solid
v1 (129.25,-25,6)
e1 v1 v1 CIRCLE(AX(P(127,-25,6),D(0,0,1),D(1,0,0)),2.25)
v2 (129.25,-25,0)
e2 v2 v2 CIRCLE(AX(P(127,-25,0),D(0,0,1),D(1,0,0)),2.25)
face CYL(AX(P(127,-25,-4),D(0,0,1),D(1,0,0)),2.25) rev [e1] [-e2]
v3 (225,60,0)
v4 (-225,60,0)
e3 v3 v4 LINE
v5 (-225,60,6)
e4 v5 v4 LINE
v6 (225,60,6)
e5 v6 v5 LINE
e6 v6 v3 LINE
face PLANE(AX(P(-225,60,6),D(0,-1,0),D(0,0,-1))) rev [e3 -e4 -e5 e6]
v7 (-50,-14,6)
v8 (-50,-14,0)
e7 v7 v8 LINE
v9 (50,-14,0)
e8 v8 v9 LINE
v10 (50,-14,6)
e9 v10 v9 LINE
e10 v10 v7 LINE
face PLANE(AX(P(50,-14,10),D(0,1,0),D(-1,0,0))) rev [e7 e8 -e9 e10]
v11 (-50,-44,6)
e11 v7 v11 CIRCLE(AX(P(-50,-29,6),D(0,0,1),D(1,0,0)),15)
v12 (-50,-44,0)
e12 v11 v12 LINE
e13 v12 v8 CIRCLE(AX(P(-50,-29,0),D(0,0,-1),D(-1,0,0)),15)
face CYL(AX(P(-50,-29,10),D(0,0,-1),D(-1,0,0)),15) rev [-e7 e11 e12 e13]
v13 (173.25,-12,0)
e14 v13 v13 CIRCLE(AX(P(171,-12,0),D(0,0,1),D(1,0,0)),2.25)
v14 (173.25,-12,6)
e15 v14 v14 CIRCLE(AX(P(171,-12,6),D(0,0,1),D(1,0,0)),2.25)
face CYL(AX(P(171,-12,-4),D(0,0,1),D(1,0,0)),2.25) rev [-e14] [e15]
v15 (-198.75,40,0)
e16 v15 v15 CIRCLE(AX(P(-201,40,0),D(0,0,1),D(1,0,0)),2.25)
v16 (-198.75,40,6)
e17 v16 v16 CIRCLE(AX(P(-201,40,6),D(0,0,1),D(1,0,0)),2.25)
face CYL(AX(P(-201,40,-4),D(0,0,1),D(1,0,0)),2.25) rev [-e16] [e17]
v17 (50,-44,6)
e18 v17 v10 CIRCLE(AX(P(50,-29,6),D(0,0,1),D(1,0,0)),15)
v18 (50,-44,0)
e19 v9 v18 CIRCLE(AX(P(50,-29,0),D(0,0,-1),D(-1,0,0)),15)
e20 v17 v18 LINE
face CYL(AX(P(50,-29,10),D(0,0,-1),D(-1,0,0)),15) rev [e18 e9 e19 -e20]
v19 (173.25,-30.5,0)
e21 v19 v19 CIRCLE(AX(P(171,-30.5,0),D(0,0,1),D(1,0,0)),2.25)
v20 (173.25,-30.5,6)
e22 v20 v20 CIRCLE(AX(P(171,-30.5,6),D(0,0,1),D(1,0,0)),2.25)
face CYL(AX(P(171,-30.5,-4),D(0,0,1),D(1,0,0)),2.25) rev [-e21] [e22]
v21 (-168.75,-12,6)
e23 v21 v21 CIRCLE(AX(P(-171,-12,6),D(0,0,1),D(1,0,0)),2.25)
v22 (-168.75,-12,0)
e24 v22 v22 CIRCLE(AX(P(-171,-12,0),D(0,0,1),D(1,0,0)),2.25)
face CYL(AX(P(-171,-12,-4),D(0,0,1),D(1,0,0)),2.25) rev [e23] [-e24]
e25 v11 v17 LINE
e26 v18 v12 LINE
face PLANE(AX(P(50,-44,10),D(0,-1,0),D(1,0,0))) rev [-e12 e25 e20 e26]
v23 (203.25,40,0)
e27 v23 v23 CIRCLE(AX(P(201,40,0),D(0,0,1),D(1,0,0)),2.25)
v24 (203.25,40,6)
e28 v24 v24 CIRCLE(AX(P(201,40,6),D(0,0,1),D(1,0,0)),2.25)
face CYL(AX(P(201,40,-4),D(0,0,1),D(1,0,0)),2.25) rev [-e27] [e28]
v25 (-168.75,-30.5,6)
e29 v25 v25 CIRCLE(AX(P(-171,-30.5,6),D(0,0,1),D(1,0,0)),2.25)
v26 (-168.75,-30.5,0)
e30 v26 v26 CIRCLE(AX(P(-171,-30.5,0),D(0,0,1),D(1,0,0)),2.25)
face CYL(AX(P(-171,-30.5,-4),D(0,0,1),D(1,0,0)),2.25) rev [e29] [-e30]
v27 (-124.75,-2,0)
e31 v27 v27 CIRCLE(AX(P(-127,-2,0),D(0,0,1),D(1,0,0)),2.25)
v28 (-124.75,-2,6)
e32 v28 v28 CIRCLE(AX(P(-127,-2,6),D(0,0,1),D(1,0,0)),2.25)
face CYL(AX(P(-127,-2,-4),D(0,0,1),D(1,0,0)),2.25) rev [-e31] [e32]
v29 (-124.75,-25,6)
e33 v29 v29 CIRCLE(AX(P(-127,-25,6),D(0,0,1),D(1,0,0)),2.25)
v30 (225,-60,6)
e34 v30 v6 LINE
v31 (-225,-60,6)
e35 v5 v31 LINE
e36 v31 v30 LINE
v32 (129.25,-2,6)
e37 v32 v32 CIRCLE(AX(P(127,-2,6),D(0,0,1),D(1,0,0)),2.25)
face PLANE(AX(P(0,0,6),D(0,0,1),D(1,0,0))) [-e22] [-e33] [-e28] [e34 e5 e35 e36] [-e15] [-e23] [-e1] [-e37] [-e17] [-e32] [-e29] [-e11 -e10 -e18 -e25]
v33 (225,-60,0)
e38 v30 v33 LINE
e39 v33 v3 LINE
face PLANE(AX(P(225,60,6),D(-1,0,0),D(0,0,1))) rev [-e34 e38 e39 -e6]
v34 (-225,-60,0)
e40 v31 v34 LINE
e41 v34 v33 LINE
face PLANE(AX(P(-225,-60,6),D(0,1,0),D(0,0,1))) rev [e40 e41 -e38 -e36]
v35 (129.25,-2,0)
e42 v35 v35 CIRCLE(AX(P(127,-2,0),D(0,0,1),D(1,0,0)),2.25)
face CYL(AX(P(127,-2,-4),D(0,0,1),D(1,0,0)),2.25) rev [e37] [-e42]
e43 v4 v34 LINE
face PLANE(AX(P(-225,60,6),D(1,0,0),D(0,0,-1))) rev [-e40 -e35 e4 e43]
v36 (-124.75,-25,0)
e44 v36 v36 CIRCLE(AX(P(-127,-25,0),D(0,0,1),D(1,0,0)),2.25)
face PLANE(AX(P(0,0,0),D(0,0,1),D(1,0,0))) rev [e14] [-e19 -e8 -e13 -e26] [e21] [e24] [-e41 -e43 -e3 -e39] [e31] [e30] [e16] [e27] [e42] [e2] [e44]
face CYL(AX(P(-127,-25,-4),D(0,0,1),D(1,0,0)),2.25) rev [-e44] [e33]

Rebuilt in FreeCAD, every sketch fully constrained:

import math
import FreeCAD as App
import Part
import Sketcher
from FreeCAD import Vector
Q = App.Units.Quantity

doc = App.newDocument("Part")
body = doc.addObject("PartDesign::Body", "Body")

# Sketch on XY plane
sketch1 = doc.addObject("Sketcher::SketchObject", "Sketch")
body.addObject(sketch1)
sketch1.AttachmentSupport = (doc.XY_Plane, [""])
sketch1.MapMode = "FlatFace"
sketch1.addGeometry([
    Part.LineSegment(Vector(-225, 60, 0), Vector(-225, -60, 0)),
    Part.LineSegment(Vector(-225, -60, 0), Vector(225, -60, 0)),
    Part.LineSegment(Vector(225, -60, 0), Vector(225, 60, 0)),
    Part.LineSegment(Vector(225, 60, 0), Vector(-225, 60, 0)),
], False)
sketch1.addConstraint([
    Sketcher.Constraint("Coincident", 0, 2, 1, 1),
    Sketcher.Constraint("Coincident", 1, 2, 2, 1),
    Sketcher.Constraint("Coincident", 2, 2, 3, 1),
    Sketcher.Constraint("Coincident", 3, 2, 0, 1),
    Sketcher.Constraint("Vertical", 0),
    Sketcher.Constraint("Horizontal", 1),
    Sketcher.Constraint("Vertical", 2),
    Sketcher.Constraint("Horizontal", 3),
    Sketcher.Constraint("Symmetric", 0, 2, 2, 2, -1, 1),
    Sketcher.Constraint("DistanceX", 1, 1, 1, 2, Q("450 mm")),
    Sketcher.Constraint("DistanceY", 0, 2, 0, 1, Q("120 mm")),
])
pad1 = doc.addObject("PartDesign::Pad", "Pad")
body.addObject(pad1)
pad1.Profile = sketch1
pad1.Length = 6

# Sketch on XY plane
sketch2 = doc.addObject("Sketcher::SketchObject", "Sketch001")
body.addObject(sketch2)
sketch2.AttachmentSupport = (doc.XY_Plane, [""])
sketch2.MapMode = "FlatFace"
sketch2.addGeometry([
    Part.LineSegment(Vector(-50, -14, 0), Vector(50, -14, 0)),
    Part.ArcOfCircle(Part.Circle(Vector(50, -29, 0), Vector(0, 0, 1), 15), math.radians(-90), math.radians(90)),
    Part.LineSegment(Vector(50, -44, 0), Vector(-50, -44, 0)),
    Part.ArcOfCircle(Part.Circle(Vector(-50, -29, 0), Vector(0, 0, 1), 15), math.radians(90), math.radians(270)),
], False)
sketch2.addConstraint([
    Sketcher.Constraint("Tangent", 0, 2, 1, 2),
    Sketcher.Constraint("Tangent", 1, 1, 2, 1),
    Sketcher.Constraint("Tangent", 2, 2, 3, 2),
    Sketcher.Constraint("Tangent", 3, 1, 0, 1),
    Sketcher.Constraint("Horizontal", 0),
    Sketcher.Constraint("Horizontal", 2),
    Sketcher.Constraint("Radius", 1, Q("15 mm")),
    Sketcher.Constraint("DistanceX", 0, 1, 0, 2, Q("100 mm")),
    Sketcher.Constraint("DistanceX", -1, 1, 1, 3, Q("50 mm")),
    Sketcher.Constraint("DistanceY", 1, 3, -1, 1, Q("29 mm")),
])
pocket1 = doc.addObject("PartDesign::Pocket", "Pocket")
body.addObject(pocket1)
pocket1.Profile = sketch2
pocket1.Length = 10
pocket1.Reversed = True

# Sketch on XY plane
sketch3 = doc.addObject("Sketcher::SketchObject", "Sketch002")
body.addObject(sketch3)
sketch3.AttachmentSupport = (doc.XY_Plane, [""])
sketch3.MapMode = "FlatFace"
sketch3.AttachmentOffset = App.Placement(Vector(0, 0, 6), App.Rotation())
sketch3.addGeometry([
    Part.Circle(Vector(-171, -12, 0), Vector(0, 0, 1), 2.2),  # 0
    Part.Circle(Vector(-171, -30.5, 0), Vector(0, 0, 1), 2.2),  # 1
    Part.Circle(Vector(171, -12, 0), Vector(0, 0, 1), 2.2),  # 2
    Part.Circle(Vector(171, -30.5, 0), Vector(0, 0, 1), 2.2),  # 3
    Part.Circle(Vector(201, 40, 0), Vector(0, 0, 1), 2.2),  # 4
    Part.Circle(Vector(-201, 40, 0), Vector(0, 0, 1), 2.2),  # 5
    Part.Circle(Vector(127, -2, 0), Vector(0, 0, 1), 2.2),  # 6
    Part.Circle(Vector(127, -25, 0), Vector(0, 0, 1), 2.2),  # 7
    Part.Circle(Vector(-127, -2, 0), Vector(0, 0, 1), 2.2),  # 8
    Part.Circle(Vector(-127, -25, 0), Vector(0, 0, 1), 2.2),  # 9
], False)
sketch3.addConstraint([
    Sketcher.Constraint("Equal", 0, 1),
    Sketcher.Constraint("Equal", 1, 2),
    Sketcher.Constraint("Equal", 2, 3),
    Sketcher.Constraint("Equal", 3, 4),
    Sketcher.Constraint("Equal", 4, 5),
    Sketcher.Constraint("Equal", 5, 6),
    Sketcher.Constraint("Equal", 6, 7),
    Sketcher.Constraint("Equal", 7, 8),
    Sketcher.Constraint("Equal", 8, 9),
    Sketcher.Constraint("Symmetric", 0, 3, 2, 3, -2),
    Sketcher.Constraint("Symmetric", 1, 3, 3, 3, -2),
    Sketcher.Constraint("Symmetric", 4, 3, 5, 3, -2),
    Sketcher.Constraint("Symmetric", 6, 3, 8, 3, -2),
    Sketcher.Constraint("Symmetric", 7, 3, 9, 3, -2),
    Sketcher.Constraint("Vertical", 0, 3, 1, 3),
    Sketcher.Constraint("Vertical", 6, 3, 7, 3),
    Sketcher.Constraint("Diameter", 0, Q("4.5 mm")),
    Sketcher.Constraint("DistanceX", 0, 3, -1, 1, Q("171 mm")),
    Sketcher.Constraint("DistanceY", 0, 3, -1, 1, Q("12 mm")),
    Sketcher.Constraint("DistanceX", -1, 1, 4, 3, Q("201 mm")),
    Sketcher.Constraint("DistanceY", -1, 1, 4, 3, Q("40 mm")),
    Sketcher.Constraint("DistanceX", -1, 1, 6, 3, Q("127 mm")),
    Sketcher.Constraint("DistanceY", 6, 3, -1, 1, Q("2 mm")),
    Sketcher.Constraint("DistanceY", 7, 3, -1, 1, Q("25 mm")),
    Sketcher.Constraint("DistanceY", 1, 3, -1, 1, Q("30.5 mm")),
])
pocket2 = doc.addObject("PartDesign::Pocket", "Pocket001")
body.addObject(pocket2)
pocket2.Profile = sketch3
pocket2.Length = 10

doc.recompute()
